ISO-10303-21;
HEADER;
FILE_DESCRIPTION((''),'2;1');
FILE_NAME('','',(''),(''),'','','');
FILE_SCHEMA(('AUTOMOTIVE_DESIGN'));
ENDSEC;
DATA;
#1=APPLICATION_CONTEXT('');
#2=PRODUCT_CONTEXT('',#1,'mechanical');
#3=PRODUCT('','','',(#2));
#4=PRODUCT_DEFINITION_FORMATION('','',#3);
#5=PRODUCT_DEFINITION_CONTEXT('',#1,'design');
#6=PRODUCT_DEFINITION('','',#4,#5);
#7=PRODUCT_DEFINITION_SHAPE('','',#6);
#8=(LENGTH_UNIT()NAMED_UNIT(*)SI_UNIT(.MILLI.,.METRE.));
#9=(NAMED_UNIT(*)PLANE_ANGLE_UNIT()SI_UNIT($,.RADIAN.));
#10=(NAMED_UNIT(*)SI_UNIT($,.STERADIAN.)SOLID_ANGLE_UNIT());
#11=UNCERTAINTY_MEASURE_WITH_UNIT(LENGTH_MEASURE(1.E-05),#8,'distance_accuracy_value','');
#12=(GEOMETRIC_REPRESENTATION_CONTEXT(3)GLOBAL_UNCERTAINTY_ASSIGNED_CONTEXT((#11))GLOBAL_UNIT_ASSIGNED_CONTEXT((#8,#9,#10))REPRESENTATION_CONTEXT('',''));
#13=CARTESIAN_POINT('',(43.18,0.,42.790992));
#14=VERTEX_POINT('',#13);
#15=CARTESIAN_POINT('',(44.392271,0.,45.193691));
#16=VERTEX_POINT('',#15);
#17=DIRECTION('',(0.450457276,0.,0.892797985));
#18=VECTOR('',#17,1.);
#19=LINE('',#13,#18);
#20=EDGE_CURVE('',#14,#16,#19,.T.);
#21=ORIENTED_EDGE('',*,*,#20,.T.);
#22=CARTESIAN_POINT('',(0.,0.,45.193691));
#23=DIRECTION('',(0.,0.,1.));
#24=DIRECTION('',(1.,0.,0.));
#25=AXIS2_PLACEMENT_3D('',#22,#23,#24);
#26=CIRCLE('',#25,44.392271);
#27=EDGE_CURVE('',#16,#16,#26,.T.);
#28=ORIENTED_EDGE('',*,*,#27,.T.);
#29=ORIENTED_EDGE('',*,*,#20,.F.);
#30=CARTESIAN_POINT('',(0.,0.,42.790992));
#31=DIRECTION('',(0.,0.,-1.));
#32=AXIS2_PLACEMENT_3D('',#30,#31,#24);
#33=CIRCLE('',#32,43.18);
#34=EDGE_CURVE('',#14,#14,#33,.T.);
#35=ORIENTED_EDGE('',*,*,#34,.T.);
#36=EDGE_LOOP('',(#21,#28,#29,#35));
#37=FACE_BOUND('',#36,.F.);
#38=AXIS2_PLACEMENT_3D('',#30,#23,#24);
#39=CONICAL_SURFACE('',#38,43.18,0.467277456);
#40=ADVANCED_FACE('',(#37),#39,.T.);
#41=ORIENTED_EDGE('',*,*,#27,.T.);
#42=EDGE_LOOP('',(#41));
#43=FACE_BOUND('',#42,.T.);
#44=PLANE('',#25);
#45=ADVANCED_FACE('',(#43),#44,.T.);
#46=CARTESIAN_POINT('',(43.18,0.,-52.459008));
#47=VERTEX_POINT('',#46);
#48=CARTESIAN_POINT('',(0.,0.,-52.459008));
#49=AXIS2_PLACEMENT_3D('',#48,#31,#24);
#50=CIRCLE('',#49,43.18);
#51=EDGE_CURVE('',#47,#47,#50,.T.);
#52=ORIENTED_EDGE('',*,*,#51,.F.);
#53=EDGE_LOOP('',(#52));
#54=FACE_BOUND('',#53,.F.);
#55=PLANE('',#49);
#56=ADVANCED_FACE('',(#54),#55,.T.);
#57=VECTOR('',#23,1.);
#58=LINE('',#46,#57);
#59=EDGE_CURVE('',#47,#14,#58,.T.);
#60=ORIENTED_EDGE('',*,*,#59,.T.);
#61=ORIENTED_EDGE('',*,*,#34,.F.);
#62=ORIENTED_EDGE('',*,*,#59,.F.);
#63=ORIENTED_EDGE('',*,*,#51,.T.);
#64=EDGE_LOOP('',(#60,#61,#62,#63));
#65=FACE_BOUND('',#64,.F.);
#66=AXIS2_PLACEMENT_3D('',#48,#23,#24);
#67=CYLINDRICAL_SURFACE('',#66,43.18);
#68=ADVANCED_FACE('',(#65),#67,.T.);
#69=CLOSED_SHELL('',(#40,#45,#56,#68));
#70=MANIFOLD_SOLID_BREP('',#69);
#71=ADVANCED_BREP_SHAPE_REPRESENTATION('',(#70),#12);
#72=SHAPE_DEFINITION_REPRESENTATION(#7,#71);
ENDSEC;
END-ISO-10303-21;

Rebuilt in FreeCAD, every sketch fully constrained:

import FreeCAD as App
import Part
import Sketcher
Q = App.Units.Quantity

doc = App.newDocument("Part")
body = doc.addObject("PartDesign::Body", "Body")

sketch1 = body.newObject("Sketcher::SketchObject", "Sketch")
sketch1.AttachmentSupport = (doc.getObject("XZ_Plane"), [""])
sketch1.MapMode = "FlatFace"
sketch1.addGeometry([
    Part.LineSegment(App.Vector(51, 58, 0), App.Vector(0, 58, 0)),
    Part.LineSegment(App.Vector(0, 58, 0), App.Vector(0, -52, 0)),
    Part.LineSegment(App.Vector(0, -52, 0), App.Vector(43, -52, 0)),
    Part.LineSegment(App.Vector(43, -52, 0), App.Vector(43, 43, 0)),
    Part.LineSegment(App.Vector(43, 43, 0), App.Vector(51, 58, 0)),
], False)
sketch1.addConstraint([
    Sketcher.Constraint("Coincident", 0, 2, 1, 1),
    Sketcher.Constraint("Coincident", 1, 2, 2, 1),
    Sketcher.Constraint("Coincident", 2, 2, 3, 1),
    Sketcher.Constraint("Coincident", 3, 2, 4, 1),
    Sketcher.Constraint("Coincident", 4, 2, 0, 1),
    Sketcher.Constraint("Horizontal", 0),
    Sketcher.Constraint("Vertical", 1),
    Sketcher.Constraint("Horizontal", 2),
    Sketcher.Constraint("Vertical", 3),
    Sketcher.Constraint("PointOnObject", 0, 2, -2),
    Sketcher.Constraint("DistanceX", 0, 2, 0, 1, Q("2 in")),
    Sketcher.Constraint("DistanceX", 2, 1, 2, 2, Q("1.7 in")),
    Sketcher.Constraint("DistanceY", 3, 1, 3, 2, Q("3.75 in")),
    Sketcher.Constraint("DistanceY", 1, 2, 1, 1, Q("110.352699 mm")),
    Sketcher.Constraint("DistanceY", -1, 1, 0, 2, Q("57.893691 mm")),
])
revolution = body.newObject("PartDesign::Revolution", "Revolution")
revolution.Profile = sketch1
revolution.ReferenceAxis = (sketch1, ["V_Axis"])
revolution.Angle = 360

sketch2 = body.newObject("Sketcher::SketchObject", "Sketch001")
sketch2.AttachmentSupport = (doc.getObject("XY_Plane"), [""])
sketch2.MapMode = "FlatFace"
sketch2.AttachmentOffset = App.Placement(App.Vector(0, 0, 57.893691), App.Rotation())
sketch2.addGeometry(Part.Circle(App.Vector(0, 0, 0), App.Vector(0, 0, 1), 51), False)
sketch2.addConstraint([
    Sketcher.Constraint("Coincident", 0, 3, -1, 1),
    Sketcher.Constraint("Diameter", 0, Q("4 in")),
])
pocket1 = body.newObject("PartDesign::Pocket", "Pocket")
pocket1.Profile = sketch2
pocket1.Length = Q("0.5 in")

doc.recompute()
